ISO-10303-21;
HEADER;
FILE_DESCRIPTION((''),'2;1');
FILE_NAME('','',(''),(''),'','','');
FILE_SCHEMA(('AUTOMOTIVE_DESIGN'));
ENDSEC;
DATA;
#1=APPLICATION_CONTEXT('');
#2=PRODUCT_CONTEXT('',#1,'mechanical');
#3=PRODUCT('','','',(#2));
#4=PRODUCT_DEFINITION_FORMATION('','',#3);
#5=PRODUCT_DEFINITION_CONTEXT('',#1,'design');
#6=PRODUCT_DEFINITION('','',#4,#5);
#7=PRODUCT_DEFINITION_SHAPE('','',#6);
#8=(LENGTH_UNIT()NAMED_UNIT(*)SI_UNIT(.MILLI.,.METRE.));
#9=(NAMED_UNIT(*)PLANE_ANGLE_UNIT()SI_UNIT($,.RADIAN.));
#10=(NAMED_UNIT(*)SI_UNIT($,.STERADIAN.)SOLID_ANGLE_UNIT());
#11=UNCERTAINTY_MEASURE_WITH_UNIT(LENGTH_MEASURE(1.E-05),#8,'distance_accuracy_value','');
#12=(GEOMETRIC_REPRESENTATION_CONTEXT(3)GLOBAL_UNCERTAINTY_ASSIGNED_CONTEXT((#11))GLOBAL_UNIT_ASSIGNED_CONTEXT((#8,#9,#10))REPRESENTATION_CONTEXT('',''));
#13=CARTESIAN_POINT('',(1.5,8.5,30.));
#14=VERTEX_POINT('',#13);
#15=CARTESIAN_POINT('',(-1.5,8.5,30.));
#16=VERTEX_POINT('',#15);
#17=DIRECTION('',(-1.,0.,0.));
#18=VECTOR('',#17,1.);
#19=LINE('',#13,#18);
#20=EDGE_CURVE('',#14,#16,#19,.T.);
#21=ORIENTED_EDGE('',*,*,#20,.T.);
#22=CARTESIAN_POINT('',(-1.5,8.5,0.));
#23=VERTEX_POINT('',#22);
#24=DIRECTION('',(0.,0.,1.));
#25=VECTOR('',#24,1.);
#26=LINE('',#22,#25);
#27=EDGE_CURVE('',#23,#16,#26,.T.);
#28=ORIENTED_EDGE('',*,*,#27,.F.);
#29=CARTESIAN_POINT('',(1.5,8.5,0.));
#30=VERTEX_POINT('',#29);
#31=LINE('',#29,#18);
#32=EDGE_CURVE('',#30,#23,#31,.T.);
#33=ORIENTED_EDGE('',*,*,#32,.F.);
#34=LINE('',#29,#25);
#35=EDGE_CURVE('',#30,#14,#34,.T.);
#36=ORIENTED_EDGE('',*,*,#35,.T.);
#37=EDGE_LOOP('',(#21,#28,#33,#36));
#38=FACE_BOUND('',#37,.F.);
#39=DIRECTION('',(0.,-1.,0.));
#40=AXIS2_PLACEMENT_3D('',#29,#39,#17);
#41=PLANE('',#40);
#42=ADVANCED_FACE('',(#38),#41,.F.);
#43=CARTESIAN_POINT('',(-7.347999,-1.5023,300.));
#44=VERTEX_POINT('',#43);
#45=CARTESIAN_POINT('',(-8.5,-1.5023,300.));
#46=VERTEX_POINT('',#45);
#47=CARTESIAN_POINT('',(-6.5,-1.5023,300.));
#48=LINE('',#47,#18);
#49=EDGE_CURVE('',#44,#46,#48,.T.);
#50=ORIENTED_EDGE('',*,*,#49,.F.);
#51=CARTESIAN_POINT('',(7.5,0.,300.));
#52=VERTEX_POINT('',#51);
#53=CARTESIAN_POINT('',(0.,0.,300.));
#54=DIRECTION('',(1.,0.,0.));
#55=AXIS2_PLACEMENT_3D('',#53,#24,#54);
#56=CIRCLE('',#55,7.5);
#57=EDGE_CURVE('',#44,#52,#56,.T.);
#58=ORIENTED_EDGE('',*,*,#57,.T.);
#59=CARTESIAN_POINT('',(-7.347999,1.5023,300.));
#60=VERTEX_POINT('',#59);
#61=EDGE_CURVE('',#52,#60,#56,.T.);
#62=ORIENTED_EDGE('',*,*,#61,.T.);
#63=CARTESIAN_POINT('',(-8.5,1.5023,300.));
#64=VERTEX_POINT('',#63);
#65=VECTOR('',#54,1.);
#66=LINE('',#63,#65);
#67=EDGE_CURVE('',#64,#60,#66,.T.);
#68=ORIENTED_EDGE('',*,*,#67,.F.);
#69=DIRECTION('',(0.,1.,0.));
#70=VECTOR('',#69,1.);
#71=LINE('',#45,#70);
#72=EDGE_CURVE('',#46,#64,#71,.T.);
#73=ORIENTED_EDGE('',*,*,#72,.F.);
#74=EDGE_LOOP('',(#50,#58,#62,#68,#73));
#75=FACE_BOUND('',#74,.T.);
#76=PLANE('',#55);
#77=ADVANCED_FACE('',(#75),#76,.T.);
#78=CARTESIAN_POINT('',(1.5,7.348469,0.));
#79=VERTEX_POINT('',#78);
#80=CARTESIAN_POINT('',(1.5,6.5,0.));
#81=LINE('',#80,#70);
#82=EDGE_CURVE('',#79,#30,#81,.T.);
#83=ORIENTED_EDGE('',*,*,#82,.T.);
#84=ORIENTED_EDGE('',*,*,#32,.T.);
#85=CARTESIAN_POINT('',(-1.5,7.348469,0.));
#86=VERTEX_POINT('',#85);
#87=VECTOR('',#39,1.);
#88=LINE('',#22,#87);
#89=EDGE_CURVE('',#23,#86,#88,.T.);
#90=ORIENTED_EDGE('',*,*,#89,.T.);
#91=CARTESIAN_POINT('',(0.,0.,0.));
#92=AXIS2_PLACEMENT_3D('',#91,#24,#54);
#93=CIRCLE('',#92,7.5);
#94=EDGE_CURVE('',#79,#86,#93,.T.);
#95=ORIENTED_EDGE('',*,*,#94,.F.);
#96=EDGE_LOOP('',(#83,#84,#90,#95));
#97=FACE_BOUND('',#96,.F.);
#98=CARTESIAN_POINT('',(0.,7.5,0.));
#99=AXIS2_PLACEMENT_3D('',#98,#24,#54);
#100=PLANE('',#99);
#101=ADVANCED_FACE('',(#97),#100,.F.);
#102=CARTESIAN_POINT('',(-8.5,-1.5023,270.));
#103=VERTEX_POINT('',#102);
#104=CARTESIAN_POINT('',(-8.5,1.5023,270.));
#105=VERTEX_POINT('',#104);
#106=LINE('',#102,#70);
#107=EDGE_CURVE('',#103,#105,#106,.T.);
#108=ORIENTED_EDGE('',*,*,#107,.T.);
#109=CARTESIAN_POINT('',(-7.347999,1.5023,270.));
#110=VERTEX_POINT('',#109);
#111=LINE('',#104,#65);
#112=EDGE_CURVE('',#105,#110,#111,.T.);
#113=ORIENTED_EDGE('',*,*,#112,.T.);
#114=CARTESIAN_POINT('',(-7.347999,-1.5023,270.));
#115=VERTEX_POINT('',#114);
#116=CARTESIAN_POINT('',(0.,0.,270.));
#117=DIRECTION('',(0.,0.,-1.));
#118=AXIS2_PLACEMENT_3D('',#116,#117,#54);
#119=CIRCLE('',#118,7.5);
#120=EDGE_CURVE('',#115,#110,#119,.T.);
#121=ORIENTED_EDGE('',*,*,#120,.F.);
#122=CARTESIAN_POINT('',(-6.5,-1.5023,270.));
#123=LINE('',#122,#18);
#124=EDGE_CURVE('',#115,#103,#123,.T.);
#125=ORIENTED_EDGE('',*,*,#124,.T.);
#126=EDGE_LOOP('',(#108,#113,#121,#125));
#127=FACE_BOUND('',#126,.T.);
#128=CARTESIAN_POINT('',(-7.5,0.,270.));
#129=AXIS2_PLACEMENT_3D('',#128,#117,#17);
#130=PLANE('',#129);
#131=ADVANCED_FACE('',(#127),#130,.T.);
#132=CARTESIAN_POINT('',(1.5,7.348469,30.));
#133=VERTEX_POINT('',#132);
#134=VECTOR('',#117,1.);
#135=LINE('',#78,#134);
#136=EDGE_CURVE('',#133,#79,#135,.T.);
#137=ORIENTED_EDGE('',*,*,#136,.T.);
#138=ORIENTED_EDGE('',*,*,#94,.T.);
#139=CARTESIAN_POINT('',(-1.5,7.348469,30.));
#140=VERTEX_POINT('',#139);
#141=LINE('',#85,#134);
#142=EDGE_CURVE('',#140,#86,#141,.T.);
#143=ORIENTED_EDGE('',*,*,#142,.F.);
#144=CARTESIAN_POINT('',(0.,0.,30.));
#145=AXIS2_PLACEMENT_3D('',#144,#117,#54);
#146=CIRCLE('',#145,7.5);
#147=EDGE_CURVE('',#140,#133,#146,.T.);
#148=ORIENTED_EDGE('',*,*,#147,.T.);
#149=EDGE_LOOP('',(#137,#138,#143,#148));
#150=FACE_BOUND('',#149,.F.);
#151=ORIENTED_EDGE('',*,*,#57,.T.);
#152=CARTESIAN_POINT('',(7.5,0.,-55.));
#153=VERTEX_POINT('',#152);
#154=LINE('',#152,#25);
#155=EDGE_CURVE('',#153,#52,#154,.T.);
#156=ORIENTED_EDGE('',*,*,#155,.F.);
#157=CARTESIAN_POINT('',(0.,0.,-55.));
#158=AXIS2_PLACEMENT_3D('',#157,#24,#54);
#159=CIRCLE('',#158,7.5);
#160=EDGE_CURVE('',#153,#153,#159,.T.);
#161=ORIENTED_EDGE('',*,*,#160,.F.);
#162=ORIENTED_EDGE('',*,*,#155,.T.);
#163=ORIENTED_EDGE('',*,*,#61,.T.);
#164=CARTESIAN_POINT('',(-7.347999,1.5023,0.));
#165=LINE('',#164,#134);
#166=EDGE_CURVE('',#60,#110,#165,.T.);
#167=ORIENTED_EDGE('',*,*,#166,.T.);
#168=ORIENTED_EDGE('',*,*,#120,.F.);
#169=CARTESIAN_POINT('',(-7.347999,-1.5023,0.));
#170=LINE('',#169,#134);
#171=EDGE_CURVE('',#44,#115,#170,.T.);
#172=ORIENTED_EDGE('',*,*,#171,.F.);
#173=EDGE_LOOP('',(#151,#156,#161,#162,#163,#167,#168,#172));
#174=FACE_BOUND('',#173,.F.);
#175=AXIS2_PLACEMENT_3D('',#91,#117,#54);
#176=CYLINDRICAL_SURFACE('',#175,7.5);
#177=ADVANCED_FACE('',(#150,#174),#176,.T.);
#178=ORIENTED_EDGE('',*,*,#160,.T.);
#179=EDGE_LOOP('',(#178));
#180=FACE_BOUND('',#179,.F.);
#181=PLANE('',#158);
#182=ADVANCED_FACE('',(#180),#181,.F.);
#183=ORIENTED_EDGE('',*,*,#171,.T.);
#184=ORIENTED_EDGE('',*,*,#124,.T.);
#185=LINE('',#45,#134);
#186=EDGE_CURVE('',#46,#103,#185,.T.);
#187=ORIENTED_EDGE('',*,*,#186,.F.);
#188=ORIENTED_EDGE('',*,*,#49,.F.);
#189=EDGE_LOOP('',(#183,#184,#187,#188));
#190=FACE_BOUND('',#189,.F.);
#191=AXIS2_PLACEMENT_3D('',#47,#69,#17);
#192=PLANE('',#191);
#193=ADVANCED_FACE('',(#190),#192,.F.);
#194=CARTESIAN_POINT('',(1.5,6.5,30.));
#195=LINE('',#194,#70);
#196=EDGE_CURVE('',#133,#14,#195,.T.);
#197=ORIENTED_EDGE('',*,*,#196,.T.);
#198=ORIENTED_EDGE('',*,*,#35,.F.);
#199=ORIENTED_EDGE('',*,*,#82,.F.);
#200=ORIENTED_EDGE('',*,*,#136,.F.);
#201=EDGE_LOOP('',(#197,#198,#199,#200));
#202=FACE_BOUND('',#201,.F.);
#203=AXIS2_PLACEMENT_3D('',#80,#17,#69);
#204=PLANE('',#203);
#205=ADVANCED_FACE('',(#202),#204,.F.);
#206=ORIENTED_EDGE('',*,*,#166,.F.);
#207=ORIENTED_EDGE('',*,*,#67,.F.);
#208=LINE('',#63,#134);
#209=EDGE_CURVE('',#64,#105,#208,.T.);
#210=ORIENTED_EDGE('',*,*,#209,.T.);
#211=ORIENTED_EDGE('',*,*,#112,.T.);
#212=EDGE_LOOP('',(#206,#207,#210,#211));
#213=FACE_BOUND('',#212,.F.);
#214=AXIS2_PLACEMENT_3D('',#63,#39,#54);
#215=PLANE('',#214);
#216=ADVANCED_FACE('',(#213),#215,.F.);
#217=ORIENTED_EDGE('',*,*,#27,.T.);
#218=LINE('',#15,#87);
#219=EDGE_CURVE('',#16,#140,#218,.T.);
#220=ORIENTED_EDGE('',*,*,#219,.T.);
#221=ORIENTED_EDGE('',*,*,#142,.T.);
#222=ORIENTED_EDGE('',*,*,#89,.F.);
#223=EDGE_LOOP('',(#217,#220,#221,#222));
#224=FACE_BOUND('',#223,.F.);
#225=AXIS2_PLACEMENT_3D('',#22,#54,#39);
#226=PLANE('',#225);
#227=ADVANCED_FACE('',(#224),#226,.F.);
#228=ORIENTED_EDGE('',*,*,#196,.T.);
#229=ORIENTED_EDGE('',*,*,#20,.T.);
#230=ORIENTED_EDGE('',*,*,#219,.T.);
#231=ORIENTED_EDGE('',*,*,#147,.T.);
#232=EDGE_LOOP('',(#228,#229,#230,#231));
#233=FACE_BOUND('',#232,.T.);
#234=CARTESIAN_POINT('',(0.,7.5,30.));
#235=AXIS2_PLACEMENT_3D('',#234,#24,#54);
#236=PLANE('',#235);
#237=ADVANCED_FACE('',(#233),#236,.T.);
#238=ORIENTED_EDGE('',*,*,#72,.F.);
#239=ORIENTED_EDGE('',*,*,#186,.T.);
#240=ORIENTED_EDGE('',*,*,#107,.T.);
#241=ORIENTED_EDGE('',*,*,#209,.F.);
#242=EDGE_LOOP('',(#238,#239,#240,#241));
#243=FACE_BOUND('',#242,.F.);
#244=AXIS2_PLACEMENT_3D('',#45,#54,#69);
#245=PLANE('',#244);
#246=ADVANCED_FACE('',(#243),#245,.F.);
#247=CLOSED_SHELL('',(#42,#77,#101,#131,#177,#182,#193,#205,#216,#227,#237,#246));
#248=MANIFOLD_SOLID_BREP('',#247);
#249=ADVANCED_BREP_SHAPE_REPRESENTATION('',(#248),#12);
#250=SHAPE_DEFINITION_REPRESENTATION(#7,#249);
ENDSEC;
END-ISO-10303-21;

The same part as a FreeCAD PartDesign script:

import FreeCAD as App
import Part
import Sketcher


def add_polygon(sketch, points):
    """Adds a closed chain of lines whose ends are joined by coincident constraints."""
    first, n = sketch.GeometryCount, len(points)
    for a, b in zip(points, points[1:] + points[:1]):
        sketch.addGeometry(Part.LineSegment(App.Vector(*a, 0), App.Vector(*b, 0)), False)
    for i in range(n):
        sketch.addConstraint(Sketcher.Constraint("Coincident", first + i, 2, first + (i + 1) % n, 1))

doc = App.newDocument("Part")
body = doc.addObject("PartDesign::Body", "Body")

sketch1 = body.newObject("Sketcher::SketchObject", "Sketch")
sketch1.AttachmentSupport = (doc.getObject("XY_Plane"), [""])
sketch1.MapMode = "FlatFace"
sketch1.addGeometry(Part.Circle(App.Vector(0, 0, 0), App.Vector(0, 0, 1), 7.5), False)
sketch1.addConstraint([
    Sketcher.Constraint("Coincident", 0, 3, -1, 1),
    Sketcher.Constraint("Diameter", 0, 15.0),
])
pad1 = body.newObject("PartDesign::Pad", "Pad")
pad1.Profile = sketch1
pad1.Type = "TwoLengths"
pad1.Length = 300
pad1.Length2 = 55

sketch2 = body.newObject("Sketcher::SketchObject", "Sketch001")
sketch2.AttachmentSupport = (doc.getObject("XY_Plane"), [""])
sketch2.MapMode = "FlatFace"
add_polygon(sketch2, [(-1.5, 8.5), (-1.5, 6.5), (1.5, 6.5), (1.5, 8.5)])
sketch2.addConstraint([
    Sketcher.Constraint("Vertical", 0),
    Sketcher.Constraint("Horizontal", 1),
    Sketcher.Constraint("Vertical", 2),
    Sketcher.Constraint("Horizontal", 3),
    Sketcher.Constraint("DistanceX", 0, 2, -1, 1, 1.5),
    Sketcher.Constraint("DistanceX", -1, 1, 1, 2, 1.5),
    Sketcher.Constraint("DistanceY", 0, 2, 0, 1, 2.0),
    Sketcher.Constraint("DistanceY", -1, 1, 0, 2, 6.5),
])
pad2 = body.newObject("PartDesign::Pad", "Pad001")
pad2.Profile = sketch2
pad2.Length = 30

sketch3 = body.newObject("Sketcher::SketchObject", "Sketch002")
sketch3.AttachmentSupport = (doc.getObject("XY_Plane"), [""])
sketch3.MapMode = "FlatFace"
sketch3.AttachmentOffset = App.Placement(App.Vector(0, 0, 300), App.Rotation())
add_polygon(sketch3, [(-6.5, -1.5023), (-6.5, 1.5023), (-8.5, 1.5023), (-8.5, -1.5023)])
sketch3.addConstraint([
    Sketcher.Constraint("Vertical", 0),
    Sketcher.Constraint("Horizontal", 1),
    Sketcher.Constraint("Vertical", 2),
    Sketcher.Constraint("Horizontal", 3),
    Sketcher.Constraint("DistanceX", 1, 2, 1, 1, 2.0),
    Sketcher.Constraint("DistanceY", -1, 1, 0, 2, 1.5023),
    Sketcher.Constraint("DistanceY", 2, 2, -1, 1, 1.5023),
    Sketcher.Constraint("DistanceX", 0, 2, -1, 1, 6.5),
])
pad3 = body.newObject("PartDesign::Pad", "Pad002")
pad3.Profile = sketch3
pad3.Length = 30
pad3.Reversed = True

doc.recompute()
